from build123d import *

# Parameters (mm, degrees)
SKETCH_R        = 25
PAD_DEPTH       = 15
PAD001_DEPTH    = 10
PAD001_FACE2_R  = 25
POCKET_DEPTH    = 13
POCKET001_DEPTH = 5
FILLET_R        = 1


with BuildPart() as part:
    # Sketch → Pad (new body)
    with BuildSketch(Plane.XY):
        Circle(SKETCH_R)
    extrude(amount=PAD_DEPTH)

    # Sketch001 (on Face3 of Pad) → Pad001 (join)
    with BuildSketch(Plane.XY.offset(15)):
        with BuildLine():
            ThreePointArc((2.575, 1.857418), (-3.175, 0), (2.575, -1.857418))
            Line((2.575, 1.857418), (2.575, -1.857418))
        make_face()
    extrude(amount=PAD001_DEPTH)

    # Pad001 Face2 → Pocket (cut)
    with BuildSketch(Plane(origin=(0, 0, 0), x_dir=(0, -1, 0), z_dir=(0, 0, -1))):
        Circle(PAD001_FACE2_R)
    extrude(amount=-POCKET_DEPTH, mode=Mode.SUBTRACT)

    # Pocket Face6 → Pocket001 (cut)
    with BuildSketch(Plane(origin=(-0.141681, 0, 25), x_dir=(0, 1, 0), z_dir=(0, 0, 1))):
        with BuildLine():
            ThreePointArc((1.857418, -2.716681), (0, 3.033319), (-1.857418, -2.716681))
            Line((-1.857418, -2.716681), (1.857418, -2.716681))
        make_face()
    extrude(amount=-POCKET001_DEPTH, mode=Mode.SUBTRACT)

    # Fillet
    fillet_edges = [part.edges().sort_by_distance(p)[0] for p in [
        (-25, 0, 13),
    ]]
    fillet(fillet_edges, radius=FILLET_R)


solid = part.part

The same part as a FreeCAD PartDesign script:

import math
import FreeCAD as App
import Part
import Sketcher

V = App.Vector


def edges_at(feature, points):
    """Names of the edges that pass closest to the given points."""
    edges = feature.Shape.Edges
    near = lambda p: min(range(len(edges)), key=lambda i: edges[i].distToShape(Part.Vertex(*p))[0])
    return sorted({f"Edge{near(p) + 1}" for p in points})

doc = App.newDocument("Part")
params = doc.addObject("Spreadsheet::Sheet", "Params")
for row, (alias, value) in enumerate([
    ("sketch1_diameter", "50 mm"),
    ("pad1_length", "15 mm"),
    ("pad2_length", "10 mm"),
    ("sketch3_diameter", "50 mm"),
    ("pocket1_length", "13 mm"),
    ("pocket2_length", "5 mm"),
    ("fillet_radius", "1 mm"),
], start=1):
    params.set(f"A{row}", alias)
    params.set(f"B{row}", "=" + value)
    params.setAlias(f"B{row}", alias)

body = doc.addObject("PartDesign::Body", "Body")

# Sketch on XY plane
sketch1 = doc.addObject("Sketcher::SketchObject", "Sketch")
body.addObject(sketch1)
sketch1.AttachmentSupport = (doc.XY_Plane, [""])
sketch1.MapMode = "FlatFace"
sketch1.addGeometry(Part.Circle(V(0, 0, 0), V(0, 0, 1), 25), False)
sketch1.addConstraint([
    Sketcher.Constraint("Coincident", 0, 3, -1, 1),
    Sketcher.Constraint("Diameter", 0, 50.0),
])
sketch1.setExpression("Constraints[1]", "Params.sketch1_diameter")
pad1 = doc.addObject("PartDesign::Pad", "Pad")
body.addObject(pad1)
pad1.Profile = sketch1
pad1.setExpression("Length", "Params.pad1_length")

# Sketch on XY plane
sketch2 = doc.addObject("Sketcher::SketchObject", "Sketch001")
body.addObject(sketch2)
sketch2.AttachmentSupport = (doc.XY_Plane, [""])
sketch2.MapMode = "FlatFace"
sketch2.AttachmentOffset = App.Placement(V(0, 0, 15), App.Rotation())
sketch2.addGeometry([
    Part.ArcOfCircle(Part.Circle(V(0, 0, 0), V(0, 0, 1), 3.175), math.radians(35.803945), math.radians(324.196055)),
    Part.LineSegment(V(2.575, -1.857418, 0), V(2.575, 1.857418, 0)),
], False)
sketch2.addConstraint([
    Sketcher.Constraint("Coincident", 0, 1, 1, 2),
    Sketcher.Constraint("Coincident", 1, 1, 0, 2),
    Sketcher.Constraint("Vertical", 1),
    Sketcher.Constraint("Coincident", 0, 3, -1, 1),
    Sketcher.Constraint("Radius", 0, 3.175),
    Sketcher.Constraint("DistanceX", -1, 1, 0, 1, 2.575),
])
pad2 = doc.addObject("PartDesign::Pad", "Pad001")
body.addObject(pad2)
pad2.Profile = sketch2
pad2.setExpression("Length", "Params.pad2_length")

# Sketch on XY plane
sketch3 = doc.addObject("Sketcher::SketchObject", "Sketch002")
body.addObject(sketch3)
sketch3.AttachmentSupport = (doc.XY_Plane, [""])
sketch3.MapMode = "FlatFace"
sketch3.addGeometry(Part.Circle(V(0, 0, 0), V(0, 0, 1), 25), False)
sketch3.addConstraint([
    Sketcher.Constraint("Coincident", 0, 3, -1, 1),
    Sketcher.Constraint("Diameter", 0, 50.0),
])
sketch3.setExpression("Constraints[1]", "Params.sketch3_diameter")
pocket1 = doc.addObject("PartDesign::Pocket", "Pocket")
body.addObject(pocket1)
pocket1.Profile = sketch3
pocket1.setExpression("Length", "Params.pocket1_length")
pocket1.Reversed = True

# Sketch on XY plane
sketch4 = doc.addObject("Sketcher::SketchObject", "Sketch003")
body.addObject(sketch4)
sketch4.AttachmentSupport = (doc.XY_Plane, [""])
sketch4.MapMode = "FlatFace"
sketch4.AttachmentOffset = App.Placement(V(0, 0, 25), App.Rotation())
sketch4.addGeometry([
    Part.ArcOfCircle(Part.Circle(V(0, 0, 0), V(0, 0, 1), 3.175), math.radians(35.803945), math.radians(324.196055)),
    Part.LineSegment(V(2.575, -1.857418, 0), V(2.575, 1.857418, 0)),
], False)
sketch4.addConstraint([
    Sketcher.Constraint("Coincident", 0, 1, 1, 2),
    Sketcher.Constraint("Coincident", 1, 1, 0, 2),
    Sketcher.Constraint("Vertical", 1),
    Sketcher.Constraint("Coincident", 0, 3, -1, 1),
    Sketcher.Constraint("Radius", 0, 3.175),
    Sketcher.Constraint("DistanceX", -1, 1, 0, 1, 2.575),
])
pocket2 = doc.addObject("PartDesign::Pocket", "Pocket001")
body.addObject(pocket2)
pocket2.Profile = sketch4
pocket2.setExpression("Length", "Params.pocket2_length")
doc.recompute()

fillet = doc.addObject("PartDesign::Fillet", "Fillet")
body.addObject(fillet)
fillet.Base = (pocket2, edges_at(pocket2, [(-25, 0, 13)]))
fillet.setExpression("Radius", "Params.fillet_radius")

doc.recompute()
